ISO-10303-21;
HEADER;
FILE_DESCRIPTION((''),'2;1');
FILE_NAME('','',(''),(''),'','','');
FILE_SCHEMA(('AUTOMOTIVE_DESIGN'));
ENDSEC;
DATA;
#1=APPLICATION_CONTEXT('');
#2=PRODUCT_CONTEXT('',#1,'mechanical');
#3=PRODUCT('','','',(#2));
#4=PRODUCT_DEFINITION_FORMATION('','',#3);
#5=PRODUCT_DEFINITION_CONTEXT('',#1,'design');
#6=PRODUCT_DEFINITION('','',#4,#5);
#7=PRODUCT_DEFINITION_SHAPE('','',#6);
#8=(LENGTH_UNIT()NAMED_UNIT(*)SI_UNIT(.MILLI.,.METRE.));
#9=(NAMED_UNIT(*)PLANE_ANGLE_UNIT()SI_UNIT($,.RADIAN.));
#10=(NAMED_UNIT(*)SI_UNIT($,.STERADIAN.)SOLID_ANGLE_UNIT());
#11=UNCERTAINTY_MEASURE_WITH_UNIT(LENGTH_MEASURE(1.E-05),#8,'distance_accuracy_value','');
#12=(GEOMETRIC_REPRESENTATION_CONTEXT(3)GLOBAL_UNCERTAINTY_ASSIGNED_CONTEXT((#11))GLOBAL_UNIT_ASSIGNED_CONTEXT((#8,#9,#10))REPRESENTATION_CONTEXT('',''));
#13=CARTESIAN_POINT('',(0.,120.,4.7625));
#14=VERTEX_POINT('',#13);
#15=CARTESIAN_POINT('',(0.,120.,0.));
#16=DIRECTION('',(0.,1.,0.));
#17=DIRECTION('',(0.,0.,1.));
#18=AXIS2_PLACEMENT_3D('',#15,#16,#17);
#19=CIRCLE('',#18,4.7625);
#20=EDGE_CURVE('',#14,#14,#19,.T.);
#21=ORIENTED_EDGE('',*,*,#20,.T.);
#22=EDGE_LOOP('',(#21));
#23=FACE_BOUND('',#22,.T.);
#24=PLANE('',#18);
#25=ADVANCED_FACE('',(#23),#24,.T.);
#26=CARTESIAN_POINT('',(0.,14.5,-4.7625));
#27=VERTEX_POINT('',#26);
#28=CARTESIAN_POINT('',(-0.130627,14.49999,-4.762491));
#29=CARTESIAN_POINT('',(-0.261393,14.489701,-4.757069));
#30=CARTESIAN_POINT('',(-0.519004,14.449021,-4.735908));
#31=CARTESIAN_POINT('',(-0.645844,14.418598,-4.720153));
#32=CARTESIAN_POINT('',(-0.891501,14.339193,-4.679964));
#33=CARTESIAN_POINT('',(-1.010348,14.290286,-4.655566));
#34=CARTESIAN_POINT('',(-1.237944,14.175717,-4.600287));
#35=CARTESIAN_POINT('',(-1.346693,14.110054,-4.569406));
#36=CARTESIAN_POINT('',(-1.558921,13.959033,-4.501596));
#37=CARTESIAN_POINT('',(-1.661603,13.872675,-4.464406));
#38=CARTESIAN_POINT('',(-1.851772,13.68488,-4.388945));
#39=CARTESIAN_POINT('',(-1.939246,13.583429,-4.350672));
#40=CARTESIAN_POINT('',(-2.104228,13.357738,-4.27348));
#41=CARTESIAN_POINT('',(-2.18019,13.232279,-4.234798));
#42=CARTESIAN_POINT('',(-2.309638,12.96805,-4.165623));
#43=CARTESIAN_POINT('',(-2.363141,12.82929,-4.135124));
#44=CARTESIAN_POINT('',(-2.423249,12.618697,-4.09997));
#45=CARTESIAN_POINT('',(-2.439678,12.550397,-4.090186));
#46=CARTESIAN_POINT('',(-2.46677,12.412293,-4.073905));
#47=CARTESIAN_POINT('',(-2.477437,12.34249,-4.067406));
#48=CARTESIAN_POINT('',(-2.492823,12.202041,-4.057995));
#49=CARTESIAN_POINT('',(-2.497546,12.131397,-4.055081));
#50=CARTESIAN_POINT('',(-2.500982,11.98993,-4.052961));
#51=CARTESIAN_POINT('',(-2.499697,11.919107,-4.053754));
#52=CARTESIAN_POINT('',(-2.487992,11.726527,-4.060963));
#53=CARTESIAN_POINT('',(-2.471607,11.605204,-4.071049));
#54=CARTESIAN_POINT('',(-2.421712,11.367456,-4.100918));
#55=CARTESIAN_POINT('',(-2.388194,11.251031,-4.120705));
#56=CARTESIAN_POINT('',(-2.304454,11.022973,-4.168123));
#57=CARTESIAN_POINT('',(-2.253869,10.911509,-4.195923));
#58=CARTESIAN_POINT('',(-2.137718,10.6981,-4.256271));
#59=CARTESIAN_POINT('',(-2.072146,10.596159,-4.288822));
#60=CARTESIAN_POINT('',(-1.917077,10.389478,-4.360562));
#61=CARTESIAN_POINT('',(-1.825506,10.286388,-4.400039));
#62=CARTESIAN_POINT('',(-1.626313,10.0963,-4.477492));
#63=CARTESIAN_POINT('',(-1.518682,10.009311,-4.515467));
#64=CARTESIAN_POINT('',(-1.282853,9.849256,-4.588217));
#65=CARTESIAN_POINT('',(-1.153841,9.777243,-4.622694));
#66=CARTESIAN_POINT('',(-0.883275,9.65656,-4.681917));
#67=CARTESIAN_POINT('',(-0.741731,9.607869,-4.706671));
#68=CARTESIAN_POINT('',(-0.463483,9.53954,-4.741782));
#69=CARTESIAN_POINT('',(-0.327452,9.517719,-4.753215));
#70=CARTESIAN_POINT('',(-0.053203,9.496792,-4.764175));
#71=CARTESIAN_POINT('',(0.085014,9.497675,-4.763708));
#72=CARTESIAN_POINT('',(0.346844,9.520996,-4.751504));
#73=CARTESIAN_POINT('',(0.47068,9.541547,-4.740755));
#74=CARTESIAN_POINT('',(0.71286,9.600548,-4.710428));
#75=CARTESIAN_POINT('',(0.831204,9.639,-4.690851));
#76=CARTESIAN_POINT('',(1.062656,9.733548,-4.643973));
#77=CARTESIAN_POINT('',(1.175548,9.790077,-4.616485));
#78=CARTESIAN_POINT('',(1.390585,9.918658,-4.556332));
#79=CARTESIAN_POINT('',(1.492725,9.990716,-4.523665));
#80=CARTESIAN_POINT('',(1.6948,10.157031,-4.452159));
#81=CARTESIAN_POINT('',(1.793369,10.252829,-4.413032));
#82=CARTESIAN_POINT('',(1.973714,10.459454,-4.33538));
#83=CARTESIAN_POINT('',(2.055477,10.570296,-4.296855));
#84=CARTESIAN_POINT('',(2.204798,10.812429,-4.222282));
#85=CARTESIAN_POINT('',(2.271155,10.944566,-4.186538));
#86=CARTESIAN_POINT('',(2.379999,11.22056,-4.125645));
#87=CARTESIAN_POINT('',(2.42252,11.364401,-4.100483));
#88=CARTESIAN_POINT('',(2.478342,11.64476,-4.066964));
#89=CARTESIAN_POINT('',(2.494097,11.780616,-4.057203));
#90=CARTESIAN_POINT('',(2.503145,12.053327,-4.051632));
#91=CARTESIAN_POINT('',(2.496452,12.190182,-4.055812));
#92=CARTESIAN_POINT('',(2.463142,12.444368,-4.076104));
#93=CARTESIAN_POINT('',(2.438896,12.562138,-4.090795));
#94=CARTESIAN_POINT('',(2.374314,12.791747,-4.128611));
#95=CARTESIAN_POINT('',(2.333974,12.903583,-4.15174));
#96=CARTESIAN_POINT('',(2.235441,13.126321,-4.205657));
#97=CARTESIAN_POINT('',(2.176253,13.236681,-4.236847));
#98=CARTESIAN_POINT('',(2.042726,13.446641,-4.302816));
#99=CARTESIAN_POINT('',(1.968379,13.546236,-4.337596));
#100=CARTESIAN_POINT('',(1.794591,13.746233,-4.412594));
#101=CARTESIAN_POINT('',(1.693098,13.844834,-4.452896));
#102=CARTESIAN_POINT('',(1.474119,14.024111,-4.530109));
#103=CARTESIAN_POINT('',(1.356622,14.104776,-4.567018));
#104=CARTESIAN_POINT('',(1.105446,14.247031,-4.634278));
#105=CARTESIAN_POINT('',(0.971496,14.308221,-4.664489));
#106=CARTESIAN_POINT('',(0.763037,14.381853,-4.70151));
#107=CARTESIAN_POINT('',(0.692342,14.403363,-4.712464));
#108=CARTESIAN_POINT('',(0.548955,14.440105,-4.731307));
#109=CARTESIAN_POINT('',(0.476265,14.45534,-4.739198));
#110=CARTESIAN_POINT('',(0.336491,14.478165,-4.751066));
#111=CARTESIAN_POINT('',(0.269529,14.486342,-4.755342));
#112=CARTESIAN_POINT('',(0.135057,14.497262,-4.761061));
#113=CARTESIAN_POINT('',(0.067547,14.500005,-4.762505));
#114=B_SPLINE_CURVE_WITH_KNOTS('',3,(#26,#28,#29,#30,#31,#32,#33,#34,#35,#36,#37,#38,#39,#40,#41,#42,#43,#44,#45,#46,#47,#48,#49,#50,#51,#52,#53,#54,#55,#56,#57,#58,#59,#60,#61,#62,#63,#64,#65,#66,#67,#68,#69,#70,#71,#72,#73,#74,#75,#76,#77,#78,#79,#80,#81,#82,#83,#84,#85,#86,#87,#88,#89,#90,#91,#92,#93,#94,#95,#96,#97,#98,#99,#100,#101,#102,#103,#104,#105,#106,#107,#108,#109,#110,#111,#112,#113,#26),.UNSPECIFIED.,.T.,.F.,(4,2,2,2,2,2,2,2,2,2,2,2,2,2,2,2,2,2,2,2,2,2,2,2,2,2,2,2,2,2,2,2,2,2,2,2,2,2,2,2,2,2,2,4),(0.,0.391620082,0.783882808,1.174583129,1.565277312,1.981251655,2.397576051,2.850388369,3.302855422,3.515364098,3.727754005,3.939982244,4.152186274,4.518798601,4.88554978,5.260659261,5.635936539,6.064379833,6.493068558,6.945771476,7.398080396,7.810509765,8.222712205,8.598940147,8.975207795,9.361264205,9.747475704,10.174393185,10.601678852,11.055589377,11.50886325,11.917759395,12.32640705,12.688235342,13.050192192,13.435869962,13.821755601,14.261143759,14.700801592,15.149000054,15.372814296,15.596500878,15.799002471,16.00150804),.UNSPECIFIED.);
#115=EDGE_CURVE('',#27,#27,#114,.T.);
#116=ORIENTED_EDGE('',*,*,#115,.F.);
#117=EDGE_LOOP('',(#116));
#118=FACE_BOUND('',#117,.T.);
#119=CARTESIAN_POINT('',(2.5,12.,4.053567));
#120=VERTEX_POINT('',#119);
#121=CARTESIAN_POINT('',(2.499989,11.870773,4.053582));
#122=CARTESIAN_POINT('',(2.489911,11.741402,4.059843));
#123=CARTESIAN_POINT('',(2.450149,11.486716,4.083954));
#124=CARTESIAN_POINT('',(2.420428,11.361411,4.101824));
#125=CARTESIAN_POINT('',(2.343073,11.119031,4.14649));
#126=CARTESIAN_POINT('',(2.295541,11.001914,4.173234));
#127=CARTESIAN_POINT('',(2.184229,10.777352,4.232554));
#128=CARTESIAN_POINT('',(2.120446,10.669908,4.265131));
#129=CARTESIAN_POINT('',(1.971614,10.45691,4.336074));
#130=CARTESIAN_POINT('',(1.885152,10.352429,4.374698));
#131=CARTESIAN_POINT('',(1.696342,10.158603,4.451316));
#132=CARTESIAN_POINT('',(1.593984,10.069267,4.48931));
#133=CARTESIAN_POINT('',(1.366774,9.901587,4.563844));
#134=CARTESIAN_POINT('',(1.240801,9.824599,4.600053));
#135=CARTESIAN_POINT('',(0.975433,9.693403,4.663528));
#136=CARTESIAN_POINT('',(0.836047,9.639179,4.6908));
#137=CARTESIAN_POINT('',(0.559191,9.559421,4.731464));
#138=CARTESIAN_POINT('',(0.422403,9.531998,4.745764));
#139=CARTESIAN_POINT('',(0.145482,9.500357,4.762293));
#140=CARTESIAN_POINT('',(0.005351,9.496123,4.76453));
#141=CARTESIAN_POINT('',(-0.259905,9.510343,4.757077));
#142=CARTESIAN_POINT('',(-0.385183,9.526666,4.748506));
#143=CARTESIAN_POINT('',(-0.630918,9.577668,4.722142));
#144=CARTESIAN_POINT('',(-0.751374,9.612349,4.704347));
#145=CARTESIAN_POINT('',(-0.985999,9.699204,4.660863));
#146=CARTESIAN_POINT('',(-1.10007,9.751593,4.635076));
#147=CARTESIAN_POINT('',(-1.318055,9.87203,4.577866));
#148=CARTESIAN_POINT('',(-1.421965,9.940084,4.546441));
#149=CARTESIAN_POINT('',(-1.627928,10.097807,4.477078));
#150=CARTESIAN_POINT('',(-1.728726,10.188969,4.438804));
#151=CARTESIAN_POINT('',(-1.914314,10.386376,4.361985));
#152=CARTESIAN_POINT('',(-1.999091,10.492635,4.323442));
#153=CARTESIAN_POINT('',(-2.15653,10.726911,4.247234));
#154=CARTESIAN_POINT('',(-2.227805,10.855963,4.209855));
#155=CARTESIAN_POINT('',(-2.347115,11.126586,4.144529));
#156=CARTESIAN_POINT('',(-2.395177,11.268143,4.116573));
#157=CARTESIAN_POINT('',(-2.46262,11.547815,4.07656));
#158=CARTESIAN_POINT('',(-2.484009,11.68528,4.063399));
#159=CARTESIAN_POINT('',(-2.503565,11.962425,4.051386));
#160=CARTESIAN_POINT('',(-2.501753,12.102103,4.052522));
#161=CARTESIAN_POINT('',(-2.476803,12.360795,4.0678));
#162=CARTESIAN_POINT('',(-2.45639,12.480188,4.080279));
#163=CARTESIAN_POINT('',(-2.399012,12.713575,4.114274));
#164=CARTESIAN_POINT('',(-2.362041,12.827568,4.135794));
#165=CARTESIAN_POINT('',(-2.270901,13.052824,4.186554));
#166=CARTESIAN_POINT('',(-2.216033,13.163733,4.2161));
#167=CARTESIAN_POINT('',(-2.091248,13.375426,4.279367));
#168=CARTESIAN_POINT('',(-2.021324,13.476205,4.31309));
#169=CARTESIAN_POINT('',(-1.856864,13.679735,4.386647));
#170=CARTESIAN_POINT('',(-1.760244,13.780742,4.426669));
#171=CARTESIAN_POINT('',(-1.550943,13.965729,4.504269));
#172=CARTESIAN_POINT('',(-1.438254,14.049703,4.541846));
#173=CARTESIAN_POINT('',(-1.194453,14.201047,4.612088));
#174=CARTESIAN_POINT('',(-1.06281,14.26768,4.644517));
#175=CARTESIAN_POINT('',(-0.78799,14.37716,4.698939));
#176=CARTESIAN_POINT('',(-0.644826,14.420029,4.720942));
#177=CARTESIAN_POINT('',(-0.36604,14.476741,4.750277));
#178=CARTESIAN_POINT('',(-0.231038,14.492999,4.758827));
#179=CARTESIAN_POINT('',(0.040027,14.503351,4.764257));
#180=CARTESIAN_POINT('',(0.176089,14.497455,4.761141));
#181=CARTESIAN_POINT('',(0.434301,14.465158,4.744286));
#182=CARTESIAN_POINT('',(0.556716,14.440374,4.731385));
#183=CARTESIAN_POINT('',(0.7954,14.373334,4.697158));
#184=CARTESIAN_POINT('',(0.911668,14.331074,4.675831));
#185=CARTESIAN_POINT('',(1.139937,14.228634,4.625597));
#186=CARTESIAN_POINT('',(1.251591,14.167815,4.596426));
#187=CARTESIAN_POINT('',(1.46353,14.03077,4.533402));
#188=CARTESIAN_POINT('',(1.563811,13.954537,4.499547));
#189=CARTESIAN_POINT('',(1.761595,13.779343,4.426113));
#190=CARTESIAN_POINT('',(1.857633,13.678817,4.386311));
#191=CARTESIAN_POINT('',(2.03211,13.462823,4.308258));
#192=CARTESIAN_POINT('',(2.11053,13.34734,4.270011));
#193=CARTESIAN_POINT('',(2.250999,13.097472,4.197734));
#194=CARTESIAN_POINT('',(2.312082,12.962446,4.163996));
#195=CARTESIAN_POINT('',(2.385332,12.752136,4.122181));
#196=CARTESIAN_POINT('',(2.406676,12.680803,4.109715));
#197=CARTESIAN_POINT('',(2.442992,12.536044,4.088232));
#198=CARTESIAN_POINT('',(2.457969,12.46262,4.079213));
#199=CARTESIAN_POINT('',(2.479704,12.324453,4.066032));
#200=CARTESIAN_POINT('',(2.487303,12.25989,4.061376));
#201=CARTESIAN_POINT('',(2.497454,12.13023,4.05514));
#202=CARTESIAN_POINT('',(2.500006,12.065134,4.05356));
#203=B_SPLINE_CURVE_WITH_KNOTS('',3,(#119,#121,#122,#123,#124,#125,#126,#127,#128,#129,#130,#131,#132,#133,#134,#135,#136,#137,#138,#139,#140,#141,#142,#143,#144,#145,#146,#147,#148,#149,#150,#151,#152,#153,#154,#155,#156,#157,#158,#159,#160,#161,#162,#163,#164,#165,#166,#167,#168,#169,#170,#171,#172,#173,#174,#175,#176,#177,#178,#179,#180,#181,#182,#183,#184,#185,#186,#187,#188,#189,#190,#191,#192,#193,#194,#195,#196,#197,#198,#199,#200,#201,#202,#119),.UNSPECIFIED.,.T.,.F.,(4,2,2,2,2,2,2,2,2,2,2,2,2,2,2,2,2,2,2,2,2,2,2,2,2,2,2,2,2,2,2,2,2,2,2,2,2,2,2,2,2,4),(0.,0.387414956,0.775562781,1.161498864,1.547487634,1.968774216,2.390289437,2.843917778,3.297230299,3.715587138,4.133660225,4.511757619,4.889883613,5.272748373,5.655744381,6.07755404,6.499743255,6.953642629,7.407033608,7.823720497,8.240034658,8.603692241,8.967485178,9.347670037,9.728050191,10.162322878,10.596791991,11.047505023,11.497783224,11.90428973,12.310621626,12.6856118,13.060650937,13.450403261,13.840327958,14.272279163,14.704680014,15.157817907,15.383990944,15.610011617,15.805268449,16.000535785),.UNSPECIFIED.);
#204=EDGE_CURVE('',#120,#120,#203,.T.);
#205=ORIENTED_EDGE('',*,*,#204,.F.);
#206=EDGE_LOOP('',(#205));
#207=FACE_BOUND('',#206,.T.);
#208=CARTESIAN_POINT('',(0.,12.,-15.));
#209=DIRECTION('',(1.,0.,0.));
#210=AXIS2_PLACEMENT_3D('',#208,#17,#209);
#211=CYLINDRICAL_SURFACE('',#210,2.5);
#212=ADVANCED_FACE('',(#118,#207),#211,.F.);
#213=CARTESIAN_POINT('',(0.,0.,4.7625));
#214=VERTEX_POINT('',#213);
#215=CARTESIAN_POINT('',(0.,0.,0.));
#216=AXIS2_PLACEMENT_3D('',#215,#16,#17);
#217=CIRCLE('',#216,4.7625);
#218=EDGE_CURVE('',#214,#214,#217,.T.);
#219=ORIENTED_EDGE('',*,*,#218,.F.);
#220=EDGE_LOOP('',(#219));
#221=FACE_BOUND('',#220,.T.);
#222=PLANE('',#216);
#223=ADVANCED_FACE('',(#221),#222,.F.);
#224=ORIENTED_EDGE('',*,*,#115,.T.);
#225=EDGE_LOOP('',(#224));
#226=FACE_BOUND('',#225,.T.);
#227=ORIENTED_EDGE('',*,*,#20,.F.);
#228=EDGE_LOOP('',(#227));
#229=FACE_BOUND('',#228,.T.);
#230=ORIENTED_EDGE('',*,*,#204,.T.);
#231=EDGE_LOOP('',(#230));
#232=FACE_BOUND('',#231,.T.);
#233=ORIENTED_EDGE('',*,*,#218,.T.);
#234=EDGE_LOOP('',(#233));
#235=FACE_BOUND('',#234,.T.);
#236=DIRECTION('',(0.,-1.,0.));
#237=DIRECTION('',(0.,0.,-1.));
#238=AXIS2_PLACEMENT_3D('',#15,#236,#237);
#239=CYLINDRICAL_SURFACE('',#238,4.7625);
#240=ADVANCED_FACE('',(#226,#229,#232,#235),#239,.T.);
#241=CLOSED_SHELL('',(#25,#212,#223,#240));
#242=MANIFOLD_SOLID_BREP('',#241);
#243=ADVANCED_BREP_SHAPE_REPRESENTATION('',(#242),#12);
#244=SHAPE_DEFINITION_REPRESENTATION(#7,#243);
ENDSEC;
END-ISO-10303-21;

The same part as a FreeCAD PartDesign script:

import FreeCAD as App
import Part
import Sketcher
Q = App.Units.Quantity

doc = App.newDocument("Part")
body = doc.addObject("PartDesign::Body", "Body")

# Sketch on XZ plane
sketch1 = body.newObject("Sketcher::SketchObject", "Sketch")
sketch1.AttachmentSupport = (doc.getObject("XZ_Plane"), [""])
sketch1.MapMode = "FlatFace"
sketch1.addGeometry(Part.Circle(App.Vector(0, 0, 0), App.Vector(0, 0, 1), 4.7625), False)
sketch1.addConstraint(Sketcher.Constraint("Coincident", 0, 3, -1, 1))
sketch1.addConstraint(Sketcher.Constraint("Diameter", 0, Q("9.525 mm")))
pad1 = body.newObject("PartDesign::Pad", "Pad")
pad1.Profile = sketch1
pad1.Length = 120
pad1.Reversed = True

# Sketch on XY plane
sketch2 = body.newObject("Sketcher::SketchObject", "Sketch001")
sketch2.AttachmentSupport = (doc.getObject("XY_Plane"), [""])
sketch2.MapMode = "FlatFace"
sketch2.addGeometry(Part.Circle(App.Vector(0, 12, 0), App.Vector(0, 0, 1), 2.5), False)
sketch2.addConstraint(Sketcher.Constraint("PointOnObject", 0, 3, -2))
sketch2.addConstraint(Sketcher.Constraint("Diameter", 0, Q("5 mm")))
sketch2.addConstraint(Sketcher.Constraint("DistanceY", -1, 1, 0, 3, Q("12 mm")))
pocket1 = body.newObject("PartDesign::Pocket", "Pocket")
pocket1.Profile = sketch2
pocket1.Length = 30
pocket1.Midplane = True

doc.recompute()
